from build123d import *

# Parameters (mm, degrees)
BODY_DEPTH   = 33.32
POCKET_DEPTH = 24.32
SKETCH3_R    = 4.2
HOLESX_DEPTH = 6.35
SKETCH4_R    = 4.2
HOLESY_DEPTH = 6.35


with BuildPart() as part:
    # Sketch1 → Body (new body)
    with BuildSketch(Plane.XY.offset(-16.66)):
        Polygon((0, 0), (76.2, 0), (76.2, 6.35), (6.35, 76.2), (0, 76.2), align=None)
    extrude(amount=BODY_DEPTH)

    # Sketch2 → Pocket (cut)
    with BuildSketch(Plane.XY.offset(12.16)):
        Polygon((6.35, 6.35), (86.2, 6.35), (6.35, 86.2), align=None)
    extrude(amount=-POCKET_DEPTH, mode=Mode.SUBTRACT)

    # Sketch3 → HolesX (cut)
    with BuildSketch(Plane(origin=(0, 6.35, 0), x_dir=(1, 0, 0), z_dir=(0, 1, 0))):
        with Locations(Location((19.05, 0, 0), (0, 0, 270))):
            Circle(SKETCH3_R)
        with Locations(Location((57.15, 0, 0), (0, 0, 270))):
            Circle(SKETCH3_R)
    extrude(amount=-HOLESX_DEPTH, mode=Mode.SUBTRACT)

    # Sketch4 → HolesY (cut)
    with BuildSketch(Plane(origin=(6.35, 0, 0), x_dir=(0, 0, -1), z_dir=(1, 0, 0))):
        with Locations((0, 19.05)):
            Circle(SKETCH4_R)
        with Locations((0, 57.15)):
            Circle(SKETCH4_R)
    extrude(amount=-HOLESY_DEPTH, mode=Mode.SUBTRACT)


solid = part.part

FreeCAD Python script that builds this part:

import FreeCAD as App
import Part
import Sketcher

V = App.Vector
Q = App.Units.Quantity


def add_polygon(sketch, points):
    """Adds a closed chain of lines whose ends are joined by coincident constraints."""
    first, n = sketch.GeometryCount, len(points)
    for a, b in zip(points, points[1:] + points[:1]):
        sketch.addGeometry(Part.LineSegment(App.Vector(*a, 0), App.Vector(*b, 0)), False)
    for i in range(n):
        sketch.addConstraint(Sketcher.Constraint("Coincident", first + i, 2, first + (i + 1) % n, 1))

doc = App.newDocument("Part")
params = doc.addObject("Spreadsheet::Sheet", "Params")
for row, (alias, value) in enumerate([
    ("sketch1_width", "3 in"),
    ("sketch1_width2", "0.25 in"),
    ("pad1_length", "33.32 mm"),
    ("pocket1_length", "24.32 mm"),
    ("pocket2_length", "0.25 in"),
    ("pocket3_length", "0.25 in"),
], start=1):
    params.set(f"A{row}", alias)
    params.set(f"B{row}", "=" + value)
    params.setAlias(f"B{row}", alias)

body = doc.addObject("PartDesign::Body", "Body")

sketch1 = body.newObject("Sketcher::SketchObject", "Sketch")
sketch1.AttachmentSupport = (doc.getObject("XY_Plane"), [""])
sketch1.MapMode = "FlatFace"
sketch1.AttachmentOffset = App.Placement(V(0, 0, -16.66), App.Rotation())
add_polygon(sketch1, [(0, 0), (76, 0), (76, 6), (6, 76), (0, 76)])
sketch1.addConstraint([
    Sketcher.Constraint("Horizontal", 0),
    Sketcher.Constraint("Vertical", 1),
    Sketcher.Constraint("Horizontal", 3),
    Sketcher.Constraint("Vertical", 4),
    Sketcher.Constraint("Coincident", 4, 2, -1, 1),
    Sketcher.Constraint("Equal", 3, 1),
    Sketcher.Constraint("Equal", 0, 4),
    Sketcher.Constraint("DistanceX", 0, 1, 0, 2, Q("3 in")),
    Sketcher.Constraint("DistanceX", 3, 2, 3, 1, Q("0.25 in")),
])
sketch1.setExpression("Constraints[12]", "Params.sketch1_width")
sketch1.setExpression("Constraints[13]", "Params.sketch1_width2")
pad1 = body.newObject("PartDesign::Pad", "Pad")
pad1.Profile = sketch1
pad1.setExpression("Length", "Params.pad1_length")

sketch2 = body.newObject("Sketcher::SketchObject", "Sketch001")
sketch2.AttachmentSupport = (doc.getObject("XY_Plane"), [""])
sketch2.MapMode = "FlatFace"
sketch2.AttachmentOffset = App.Placement(V(0, 0, 12.16), App.Rotation())
add_polygon(sketch2, [(6, 6), (86, 6), (6, 86)])
sketch2.addConstraint([
    Sketcher.Constraint("Horizontal", 0),
    Sketcher.Constraint("Vertical", 2),
    Sketcher.Constraint("Equal", 0, 2),
    Sketcher.Constraint("DistanceY", -1, 1, 0, 2, Q("0.25 in")),
    Sketcher.Constraint("DistanceX", -1, 1, 1, 2, Q("0.25 in")),
    Sketcher.Constraint("DistanceX", 0, 1, 0, 2, Q("79.85 mm")),
])
pocket1 = body.newObject("PartDesign::Pocket", "Pocket")
pocket1.Profile = sketch2
pocket1.setExpression("Length", "Params.pocket1_length")

sketch3 = body.newObject("Sketcher::SketchObject", "Sketch002")
sketch3.AttachmentSupport = (doc.getObject("XZ_Plane"), [""])
sketch3.MapMode = "FlatFace"
sketch3.AttachmentOffset = App.Placement(V(0, 0, -0.25 * 25.4), App.Rotation())
sketch3.addGeometry([
    Part.Circle(V(19.1, 0, 0), V(0, 0, 1), 4.2),
    Part.Circle(V(57.1, 0, 0), V(0, 0, 1), 4.2),
], False)
sketch3.addConstraint([
    Sketcher.Constraint("Equal", 0, 1),
    Sketcher.Constraint("PointOnObject", 0, 3, -1),
    Sketcher.Constraint("PointOnObject", 1, 3, -1),
    Sketcher.Constraint("DistanceX", 0, 3, 1, 3, Q("1.5 in")),
    Sketcher.Constraint("Diameter", 0, Q("8.4 mm")),
    Sketcher.Constraint("DistanceX", -1, 1, 0, 3, Q("0.75 in")),
])
pocket2 = body.newObject("PartDesign::Pocket", "Pocket001")
pocket2.Profile = sketch3
pocket2.setExpression("Length", "Params.pocket2_length")
pocket2.Reversed = True

sketch4 = body.newObject("Sketcher::SketchObject", "Sketch003")
sketch4.AttachmentSupport = (doc.getObject("YZ_Plane"), [""])
sketch4.MapMode = "FlatFace"
sketch4.AttachmentOffset = App.Placement(V(0, 0, 0.25 * 25.4), App.Rotation())
sketch4.addGeometry([
    Part.Circle(V(19.1, 0, 0), V(0, 0, 1), 4.2),
    Part.Circle(V(57.1, 0, 0), V(0, 0, 1), 4.2),
], False)
sketch4.addConstraint([
    Sketcher.Constraint("Equal", 0, 1),
    Sketcher.Constraint("PointOnObject", 0, 3, -1),
    Sketcher.Constraint("PointOnObject", 1, 3, -1),
    Sketcher.Constraint("DistanceX", 0, 3, 1, 3, Q("1.5 in")),
    Sketcher.Constraint("Diameter", 0, Q("8.4 mm")),
    Sketcher.Constraint("DistanceX", -1, 1, 0, 3, Q("0.75 in")),
])
pocket3 = body.newObject("PartDesign::Pocket", "Pocket002")
pocket3.Profile = sketch4
pocket3.setExpression("Length", "Params.pocket3_length")

doc.recompute()
